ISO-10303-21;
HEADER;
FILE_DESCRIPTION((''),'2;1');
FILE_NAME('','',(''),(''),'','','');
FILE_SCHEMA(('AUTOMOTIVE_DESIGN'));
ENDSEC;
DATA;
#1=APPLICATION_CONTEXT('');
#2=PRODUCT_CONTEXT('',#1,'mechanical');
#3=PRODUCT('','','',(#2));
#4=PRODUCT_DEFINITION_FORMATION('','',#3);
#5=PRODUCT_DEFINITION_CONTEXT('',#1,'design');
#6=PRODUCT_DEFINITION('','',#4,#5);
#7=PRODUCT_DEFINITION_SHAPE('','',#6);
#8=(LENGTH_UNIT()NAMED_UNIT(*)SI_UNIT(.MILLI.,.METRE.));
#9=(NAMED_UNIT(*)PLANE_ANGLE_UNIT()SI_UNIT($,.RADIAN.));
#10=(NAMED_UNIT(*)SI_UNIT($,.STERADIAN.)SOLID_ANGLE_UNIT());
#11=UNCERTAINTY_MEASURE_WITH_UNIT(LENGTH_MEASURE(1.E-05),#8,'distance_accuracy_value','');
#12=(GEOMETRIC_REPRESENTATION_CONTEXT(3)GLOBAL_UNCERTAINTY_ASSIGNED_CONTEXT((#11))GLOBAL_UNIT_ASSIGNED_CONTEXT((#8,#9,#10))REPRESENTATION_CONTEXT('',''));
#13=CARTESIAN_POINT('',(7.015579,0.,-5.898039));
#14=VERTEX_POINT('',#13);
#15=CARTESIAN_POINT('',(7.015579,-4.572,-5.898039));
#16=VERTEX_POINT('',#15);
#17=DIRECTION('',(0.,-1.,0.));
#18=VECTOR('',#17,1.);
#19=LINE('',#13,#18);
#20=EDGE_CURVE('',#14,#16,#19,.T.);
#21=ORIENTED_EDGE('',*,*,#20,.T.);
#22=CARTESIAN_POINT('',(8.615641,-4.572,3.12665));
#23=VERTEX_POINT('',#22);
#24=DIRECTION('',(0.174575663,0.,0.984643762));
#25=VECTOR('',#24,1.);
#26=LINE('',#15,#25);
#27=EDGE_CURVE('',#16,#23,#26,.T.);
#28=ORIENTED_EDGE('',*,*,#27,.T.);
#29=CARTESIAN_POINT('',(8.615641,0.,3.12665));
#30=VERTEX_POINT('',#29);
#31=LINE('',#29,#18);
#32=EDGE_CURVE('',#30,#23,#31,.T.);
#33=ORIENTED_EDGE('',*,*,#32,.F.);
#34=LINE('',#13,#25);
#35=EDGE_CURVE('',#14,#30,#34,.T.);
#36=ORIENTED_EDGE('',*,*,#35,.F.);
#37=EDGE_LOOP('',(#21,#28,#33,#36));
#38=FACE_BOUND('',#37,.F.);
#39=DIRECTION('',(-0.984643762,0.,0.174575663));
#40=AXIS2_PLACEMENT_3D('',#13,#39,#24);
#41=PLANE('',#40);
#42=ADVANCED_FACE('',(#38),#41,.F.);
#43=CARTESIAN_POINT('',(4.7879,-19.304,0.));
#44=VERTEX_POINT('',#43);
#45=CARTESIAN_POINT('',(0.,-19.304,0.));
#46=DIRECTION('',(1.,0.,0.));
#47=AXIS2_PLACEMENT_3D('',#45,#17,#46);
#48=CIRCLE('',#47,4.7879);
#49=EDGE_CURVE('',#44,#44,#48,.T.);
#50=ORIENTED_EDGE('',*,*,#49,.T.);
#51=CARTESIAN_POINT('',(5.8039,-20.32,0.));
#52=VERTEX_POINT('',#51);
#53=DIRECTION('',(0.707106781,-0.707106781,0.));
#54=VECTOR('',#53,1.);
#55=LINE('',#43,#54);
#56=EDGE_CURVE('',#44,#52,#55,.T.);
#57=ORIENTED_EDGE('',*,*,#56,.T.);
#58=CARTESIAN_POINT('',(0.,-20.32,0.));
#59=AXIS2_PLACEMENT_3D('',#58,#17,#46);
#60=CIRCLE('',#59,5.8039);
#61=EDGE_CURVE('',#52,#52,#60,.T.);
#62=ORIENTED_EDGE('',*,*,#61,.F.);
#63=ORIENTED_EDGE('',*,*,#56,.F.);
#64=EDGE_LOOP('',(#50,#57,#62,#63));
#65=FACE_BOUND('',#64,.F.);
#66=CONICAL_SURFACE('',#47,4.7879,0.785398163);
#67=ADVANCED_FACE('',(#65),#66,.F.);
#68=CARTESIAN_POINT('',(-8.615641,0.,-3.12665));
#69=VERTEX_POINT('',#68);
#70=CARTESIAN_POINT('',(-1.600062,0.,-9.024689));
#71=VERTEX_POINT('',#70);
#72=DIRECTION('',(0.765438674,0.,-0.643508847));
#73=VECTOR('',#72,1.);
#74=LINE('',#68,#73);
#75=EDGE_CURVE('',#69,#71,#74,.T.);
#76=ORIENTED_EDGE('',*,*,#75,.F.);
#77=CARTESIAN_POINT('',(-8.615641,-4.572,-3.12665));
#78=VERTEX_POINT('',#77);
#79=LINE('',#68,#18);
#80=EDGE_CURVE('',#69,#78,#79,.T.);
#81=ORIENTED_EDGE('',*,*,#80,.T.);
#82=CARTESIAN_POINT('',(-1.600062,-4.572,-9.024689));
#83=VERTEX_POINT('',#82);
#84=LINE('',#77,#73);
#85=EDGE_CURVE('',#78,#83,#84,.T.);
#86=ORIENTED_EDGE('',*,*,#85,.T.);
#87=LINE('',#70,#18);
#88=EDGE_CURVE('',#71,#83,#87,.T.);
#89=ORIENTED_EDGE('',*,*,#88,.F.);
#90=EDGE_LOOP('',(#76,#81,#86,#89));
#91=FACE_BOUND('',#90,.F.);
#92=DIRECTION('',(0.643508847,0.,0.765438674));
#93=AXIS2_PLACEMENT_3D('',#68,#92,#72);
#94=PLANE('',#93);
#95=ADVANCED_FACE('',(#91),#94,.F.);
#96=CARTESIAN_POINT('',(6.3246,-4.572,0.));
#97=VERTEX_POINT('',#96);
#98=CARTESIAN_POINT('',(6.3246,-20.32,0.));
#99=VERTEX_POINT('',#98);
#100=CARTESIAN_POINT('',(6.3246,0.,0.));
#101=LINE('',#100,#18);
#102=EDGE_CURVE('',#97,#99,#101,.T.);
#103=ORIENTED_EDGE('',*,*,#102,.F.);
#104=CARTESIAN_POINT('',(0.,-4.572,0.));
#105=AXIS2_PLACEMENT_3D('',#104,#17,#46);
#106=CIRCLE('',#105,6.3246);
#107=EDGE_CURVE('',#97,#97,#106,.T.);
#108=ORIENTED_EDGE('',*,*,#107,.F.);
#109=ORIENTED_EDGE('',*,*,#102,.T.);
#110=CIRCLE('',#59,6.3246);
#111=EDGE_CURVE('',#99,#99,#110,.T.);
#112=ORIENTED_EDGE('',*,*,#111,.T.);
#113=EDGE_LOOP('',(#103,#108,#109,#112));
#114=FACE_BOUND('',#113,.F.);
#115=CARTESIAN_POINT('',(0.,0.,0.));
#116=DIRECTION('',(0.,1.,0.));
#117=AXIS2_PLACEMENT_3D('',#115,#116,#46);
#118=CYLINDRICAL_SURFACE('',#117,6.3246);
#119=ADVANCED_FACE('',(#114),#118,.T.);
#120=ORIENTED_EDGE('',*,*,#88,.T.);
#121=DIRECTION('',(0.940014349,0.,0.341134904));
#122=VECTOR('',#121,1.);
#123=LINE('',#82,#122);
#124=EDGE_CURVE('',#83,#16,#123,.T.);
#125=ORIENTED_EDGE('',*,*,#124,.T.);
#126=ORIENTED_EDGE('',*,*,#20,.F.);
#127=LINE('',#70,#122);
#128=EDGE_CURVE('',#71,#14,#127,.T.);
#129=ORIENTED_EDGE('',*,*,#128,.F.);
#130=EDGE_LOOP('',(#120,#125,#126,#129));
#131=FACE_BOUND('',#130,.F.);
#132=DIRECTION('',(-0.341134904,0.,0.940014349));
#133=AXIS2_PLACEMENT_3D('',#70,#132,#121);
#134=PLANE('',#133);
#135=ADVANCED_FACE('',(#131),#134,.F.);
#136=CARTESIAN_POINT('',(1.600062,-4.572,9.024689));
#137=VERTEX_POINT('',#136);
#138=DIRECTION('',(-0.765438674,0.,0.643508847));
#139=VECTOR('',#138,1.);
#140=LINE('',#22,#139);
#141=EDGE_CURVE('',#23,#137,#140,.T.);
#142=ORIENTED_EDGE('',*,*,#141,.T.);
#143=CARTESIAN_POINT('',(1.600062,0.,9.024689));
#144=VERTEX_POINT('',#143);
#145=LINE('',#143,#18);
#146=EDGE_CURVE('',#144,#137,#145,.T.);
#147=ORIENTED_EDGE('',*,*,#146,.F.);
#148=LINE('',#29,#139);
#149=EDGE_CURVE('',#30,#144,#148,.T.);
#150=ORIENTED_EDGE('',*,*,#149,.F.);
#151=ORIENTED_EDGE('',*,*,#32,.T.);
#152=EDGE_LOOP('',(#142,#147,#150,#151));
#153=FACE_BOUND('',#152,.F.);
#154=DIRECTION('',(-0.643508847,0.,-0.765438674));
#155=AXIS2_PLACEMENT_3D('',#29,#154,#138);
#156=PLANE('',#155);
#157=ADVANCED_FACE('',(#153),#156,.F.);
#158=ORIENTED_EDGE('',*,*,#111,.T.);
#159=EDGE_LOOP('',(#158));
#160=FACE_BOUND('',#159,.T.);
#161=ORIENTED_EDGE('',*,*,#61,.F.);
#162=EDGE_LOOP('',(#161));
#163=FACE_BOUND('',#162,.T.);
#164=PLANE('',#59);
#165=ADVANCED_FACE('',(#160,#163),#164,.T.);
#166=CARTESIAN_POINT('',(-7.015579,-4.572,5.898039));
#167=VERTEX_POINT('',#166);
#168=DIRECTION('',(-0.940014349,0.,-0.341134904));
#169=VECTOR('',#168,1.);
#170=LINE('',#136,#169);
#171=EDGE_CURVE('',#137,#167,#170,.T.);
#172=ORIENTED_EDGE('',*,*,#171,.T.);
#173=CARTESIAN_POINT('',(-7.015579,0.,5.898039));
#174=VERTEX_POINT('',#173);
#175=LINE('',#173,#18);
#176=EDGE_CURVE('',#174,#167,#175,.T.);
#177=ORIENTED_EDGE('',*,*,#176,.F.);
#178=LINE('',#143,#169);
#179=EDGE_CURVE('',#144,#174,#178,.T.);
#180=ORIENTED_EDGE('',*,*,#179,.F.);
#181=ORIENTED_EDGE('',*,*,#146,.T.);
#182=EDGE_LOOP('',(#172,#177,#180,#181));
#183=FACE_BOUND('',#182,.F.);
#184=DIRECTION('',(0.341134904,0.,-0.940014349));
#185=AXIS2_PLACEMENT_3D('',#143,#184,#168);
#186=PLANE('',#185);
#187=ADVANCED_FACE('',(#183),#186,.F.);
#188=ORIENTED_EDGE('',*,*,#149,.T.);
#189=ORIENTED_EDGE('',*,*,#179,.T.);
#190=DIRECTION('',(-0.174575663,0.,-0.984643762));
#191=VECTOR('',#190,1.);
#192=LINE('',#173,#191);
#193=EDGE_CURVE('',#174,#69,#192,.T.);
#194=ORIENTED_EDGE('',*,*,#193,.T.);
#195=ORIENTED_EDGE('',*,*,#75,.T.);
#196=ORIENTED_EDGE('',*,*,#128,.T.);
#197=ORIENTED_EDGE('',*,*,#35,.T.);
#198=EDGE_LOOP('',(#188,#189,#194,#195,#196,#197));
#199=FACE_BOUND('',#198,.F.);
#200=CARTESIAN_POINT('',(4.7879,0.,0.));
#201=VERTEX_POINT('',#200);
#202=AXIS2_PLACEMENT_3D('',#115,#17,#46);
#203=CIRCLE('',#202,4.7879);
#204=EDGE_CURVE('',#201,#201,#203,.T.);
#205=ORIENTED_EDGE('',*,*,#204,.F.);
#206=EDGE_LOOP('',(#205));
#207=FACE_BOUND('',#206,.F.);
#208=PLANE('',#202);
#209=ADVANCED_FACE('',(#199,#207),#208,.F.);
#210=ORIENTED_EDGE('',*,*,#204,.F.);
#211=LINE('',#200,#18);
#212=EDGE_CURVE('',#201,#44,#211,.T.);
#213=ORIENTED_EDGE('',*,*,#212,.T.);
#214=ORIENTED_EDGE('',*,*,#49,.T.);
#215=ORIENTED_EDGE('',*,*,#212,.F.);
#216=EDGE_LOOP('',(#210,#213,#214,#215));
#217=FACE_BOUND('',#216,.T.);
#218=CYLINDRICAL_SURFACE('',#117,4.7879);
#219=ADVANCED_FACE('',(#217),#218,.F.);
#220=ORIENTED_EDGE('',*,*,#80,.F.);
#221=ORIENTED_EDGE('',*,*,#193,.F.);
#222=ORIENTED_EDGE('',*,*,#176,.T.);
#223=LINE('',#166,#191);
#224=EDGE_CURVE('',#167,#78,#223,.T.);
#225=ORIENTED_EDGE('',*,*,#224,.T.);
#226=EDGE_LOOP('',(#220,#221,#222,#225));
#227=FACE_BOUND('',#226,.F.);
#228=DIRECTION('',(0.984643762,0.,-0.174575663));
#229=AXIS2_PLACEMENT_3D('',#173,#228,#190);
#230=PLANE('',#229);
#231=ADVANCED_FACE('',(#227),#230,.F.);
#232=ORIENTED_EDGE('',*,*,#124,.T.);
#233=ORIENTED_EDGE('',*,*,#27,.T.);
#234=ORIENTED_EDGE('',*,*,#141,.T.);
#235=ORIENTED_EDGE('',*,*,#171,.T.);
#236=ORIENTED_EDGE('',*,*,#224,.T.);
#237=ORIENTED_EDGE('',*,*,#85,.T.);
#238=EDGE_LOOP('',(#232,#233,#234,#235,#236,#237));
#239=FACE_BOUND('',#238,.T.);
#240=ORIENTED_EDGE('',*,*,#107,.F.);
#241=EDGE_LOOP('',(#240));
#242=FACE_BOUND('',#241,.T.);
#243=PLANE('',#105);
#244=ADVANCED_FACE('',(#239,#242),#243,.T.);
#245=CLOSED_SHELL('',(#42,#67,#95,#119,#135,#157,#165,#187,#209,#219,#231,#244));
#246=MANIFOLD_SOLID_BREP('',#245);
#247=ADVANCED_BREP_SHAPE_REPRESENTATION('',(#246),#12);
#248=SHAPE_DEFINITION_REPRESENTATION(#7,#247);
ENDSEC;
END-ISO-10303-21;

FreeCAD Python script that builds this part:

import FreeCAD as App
import Part
import Sketcher

V = App.Vector
Q = App.Units.Quantity


def edges_at(feature, points):
    """Names of the edges that pass closest to the given points."""
    edges = feature.Shape.Edges
    near = lambda p: min(range(len(edges)), key=lambda i: edges[i].distToShape(Part.Vertex(*p))[0])
    return sorted({f"Edge{near(p) + 1}" for p in points})

doc = App.newDocument("Part")
body = doc.addObject("PartDesign::Body", "Body")

sketch1 = body.newObject("Sketcher::SketchObject", "Sketch")
sketch1.AttachmentSupport = (doc.getObject("XZ_Plane"), [""])
sketch1.MapMode = "FlatFace"
sketch1.addGeometry([
    Part.Circle(V(0, 0, 0), V(0, 0, 1), 6.3246),
    Part.Circle(V(0, 0, 0), V(0, 0, 1), 4.7879),
], False)
sketch1.addConstraint([
    Sketcher.Constraint("Coincident", 0, 3, -1, 1),
    Sketcher.Constraint("Coincident", 1, 3, -1, 1),
    Sketcher.Constraint("Diameter", 0, Q("0.498 in")),
    Sketcher.Constraint("Diameter", 1, Q("0.377 in")),
])
pad1 = body.newObject("PartDesign::Pad", "Pad")
pad1.Profile = sketch1
pad1.Length = Q("0.8 in")

sketch2 = body.newObject("Sketcher::SketchObject", "Sketch001")
sketch2.AttachmentSupport = (doc.getObject("XZ_Plane"), [""])
sketch2.MapMode = "FlatFace"
sketch2.addGeometry([
    Part.LineSegment(V(7.015579, -5.898039, 0), V(8.615641, 3.12665, 0)),
    Part.LineSegment(V(8.615641, 3.12665, 0), V(1.600062, 9.024689, 0)),
    Part.LineSegment(V(1.600062, 9.024689, 0), V(-7.015579, 5.898039, 0)),
    Part.LineSegment(V(-7.015579, 5.898039, 0), V(-8.615641, -3.12665, 0)),
    Part.LineSegment(V(-8.615641, -3.12665, 0), V(-1.600062, -9.024689, 0)),
    Part.LineSegment(V(-1.600062, -9.024689, 0), V(7.015579, -5.898039, 0)),
    Part.Circle(V(0, 0, 0), V(0, 0, 1), 6.3246),
], False)
sketch2.addConstraint([
    Sketcher.Constraint("Coincident", 0, 2, 1, 1),
    Sketcher.Constraint("Coincident", 1, 2, 2, 1),
    Sketcher.Constraint("Coincident", 2, 2, 3, 1),
    Sketcher.Constraint("Coincident", 3, 2, 4, 1),
    Sketcher.Constraint("Coincident", 4, 2, 5, 1),
    Sketcher.Constraint("Coincident", 5, 2, 0, 1),
    Sketcher.Constraint("Coincident", 6, 3, -1, 1),
    Sketcher.Constraint("Symmetric", 0, 2, 3, 2, -1, 1),
    Sketcher.Constraint("Symmetric", 1, 2, 4, 2, -1, 1),
    Sketcher.Constraint("Symmetric", 2, 2, 5, 2, -1, 1),
    Sketcher.Constraint("Equal", 0, 1),
    Sketcher.Constraint("Equal", 1, 2),
    Sketcher.Constraint("Diameter", 6, Q("0.498 in")),
    Sketcher.Constraint("DistanceY", 3, 2, 0, 2, Q("6.2533 mm")),
    Sketcher.Constraint("DistanceX", -1, 1, 0, 2, Q("8.615641 mm")),
    Sketcher.Constraint("DistanceY", -1, 1, 1, 2, Q("9.024689 mm")),
    Sketcher.Constraint("DistanceX", 2, 2, -1, 1, Q("7.015579 mm")),
])
pad2 = body.newObject("PartDesign::Pad", "Pad001")
pad2.Profile = sketch2
pad2.Length = Q("0.18 in")
doc.recompute()

chamfer = body.newObject("PartDesign::Chamfer", "Chamfer")
chamfer.Base = (pad2, edges_at(pad2, [(-4.788, -20.32, 0)]))
chamfer.Size = Q("0.04 in")

doc.recompute()
